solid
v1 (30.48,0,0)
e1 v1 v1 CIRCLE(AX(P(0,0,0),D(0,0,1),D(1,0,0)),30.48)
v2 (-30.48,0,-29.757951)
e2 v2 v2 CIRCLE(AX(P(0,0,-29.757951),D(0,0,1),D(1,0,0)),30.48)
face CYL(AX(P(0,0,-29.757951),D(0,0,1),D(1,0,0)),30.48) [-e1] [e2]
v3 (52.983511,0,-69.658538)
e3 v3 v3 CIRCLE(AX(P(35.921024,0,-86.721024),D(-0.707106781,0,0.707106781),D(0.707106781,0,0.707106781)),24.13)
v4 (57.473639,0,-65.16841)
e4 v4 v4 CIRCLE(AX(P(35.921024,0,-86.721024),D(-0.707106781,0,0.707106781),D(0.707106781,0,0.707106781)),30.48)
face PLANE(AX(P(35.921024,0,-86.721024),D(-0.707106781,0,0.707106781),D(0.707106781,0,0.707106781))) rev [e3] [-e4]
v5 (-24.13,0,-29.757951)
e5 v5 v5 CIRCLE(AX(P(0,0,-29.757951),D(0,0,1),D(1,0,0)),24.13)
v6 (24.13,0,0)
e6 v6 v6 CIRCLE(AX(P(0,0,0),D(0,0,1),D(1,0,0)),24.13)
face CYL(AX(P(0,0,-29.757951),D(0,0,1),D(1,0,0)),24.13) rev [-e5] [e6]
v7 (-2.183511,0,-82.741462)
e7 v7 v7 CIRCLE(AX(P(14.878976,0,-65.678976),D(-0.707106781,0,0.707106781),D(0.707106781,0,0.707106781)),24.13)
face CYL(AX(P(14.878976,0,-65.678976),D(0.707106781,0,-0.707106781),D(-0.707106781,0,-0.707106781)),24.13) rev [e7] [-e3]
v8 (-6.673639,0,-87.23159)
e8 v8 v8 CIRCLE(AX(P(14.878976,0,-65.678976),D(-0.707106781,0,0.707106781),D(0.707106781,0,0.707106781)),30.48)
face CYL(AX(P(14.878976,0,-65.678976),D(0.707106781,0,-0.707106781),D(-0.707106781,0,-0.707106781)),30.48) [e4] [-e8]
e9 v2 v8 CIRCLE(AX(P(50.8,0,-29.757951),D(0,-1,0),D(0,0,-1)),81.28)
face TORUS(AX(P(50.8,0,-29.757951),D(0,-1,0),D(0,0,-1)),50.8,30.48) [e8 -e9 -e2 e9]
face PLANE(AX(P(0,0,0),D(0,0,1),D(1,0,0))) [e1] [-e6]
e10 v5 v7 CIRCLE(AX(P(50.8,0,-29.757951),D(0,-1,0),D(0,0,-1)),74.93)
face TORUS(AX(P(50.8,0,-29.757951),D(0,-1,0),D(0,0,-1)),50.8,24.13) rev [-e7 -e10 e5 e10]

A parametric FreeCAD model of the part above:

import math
import FreeCAD as App
import Part
import Sketcher
from FreeCAD import Vector
Q = App.Units.Quantity

doc = App.newDocument("Part")
body = doc.addObject("PartDesign::Body", "Body")

sketch1 = body.newObject("Sketcher::SketchObject", "Sketch")
sketch1.AttachmentSupport = (doc.getObject("XY_Plane"), [""])
sketch1.MapMode = "FlatFace"
sketch1.addGeometry(Part.Circle(Vector(0, 0, 0), Vector(0, 0, 1), 30.48), False)
sketch1.addGeometry(Part.Circle(Vector(0, 0, 0), Vector(0, 0, 1), 24.13), False)
sketch1.addConstraint(Sketcher.Constraint("Coincident", 0, 3, -1, 1))
sketch1.addConstraint(Sketcher.Constraint("Coincident", 1, 3, -1, 1))
sketch1.addConstraint(Sketcher.Constraint("Diameter", 0, Q("2.4 in")))
sketch1.addConstraint(Sketcher.Constraint("Diameter", 1, Q("1.9 in")))

sketch2 = body.newObject("Sketcher::SketchObject", "Sketch001")
sketch2.AttachmentSupport = (doc.getObject("XZ_Plane"), [""])
sketch2.MapMode = "FlatFace"
sketch2.addGeometry(Part.LineSegment(Vector(0, 0, 0), Vector(0, -29.757951, 0)), False)
sketch2.addGeometry(Part.ArcOfCircle(Part.Circle(Vector(50.8, -29.757951, 0), Vector(0, 0, 1), 50.8), math.radians(180), math.radians(225)), False)
sketch2.addGeometry(Part.LineSegment(Vector(14.878976, -65.678976, 0), Vector(35.921024, -86.721024, 0)), False)
sketch2.addConstraint(Sketcher.Constraint("Tangent", 0, 2, 1, 1))
sketch2.addConstraint(Sketcher.Constraint("Tangent", 1, 2, 2, 1))
sketch2.addConstraint(Sketcher.Constraint("Vertical", 0))
sketch2.addConstraint(Sketcher.Constraint("Coincident", 0, 1, -1, 1))
sketch2.addConstraint(Sketcher.Constraint("Radius", 1, Q("2 in")))
sketch2.addConstraint(Sketcher.Constraint("Angle", 2, Q("-45 deg")))
sketch2.addConstraint(Sketcher.Constraint("DistanceY", 0, 2, 0, 1, Q("29.757951 mm")))
sketch2.addConstraint(Sketcher.Constraint("Distance", 2, Q("29.757951 mm")))
doc.recompute()

additivepipe = body.newObject("PartDesign::AdditivePipe", "AdditivePipe")
additivepipe.Profile = sketch1
additivepipe.Spine = (sketch2, ["Edge1", "Edge2", "Edge3"])

doc.recompute()
